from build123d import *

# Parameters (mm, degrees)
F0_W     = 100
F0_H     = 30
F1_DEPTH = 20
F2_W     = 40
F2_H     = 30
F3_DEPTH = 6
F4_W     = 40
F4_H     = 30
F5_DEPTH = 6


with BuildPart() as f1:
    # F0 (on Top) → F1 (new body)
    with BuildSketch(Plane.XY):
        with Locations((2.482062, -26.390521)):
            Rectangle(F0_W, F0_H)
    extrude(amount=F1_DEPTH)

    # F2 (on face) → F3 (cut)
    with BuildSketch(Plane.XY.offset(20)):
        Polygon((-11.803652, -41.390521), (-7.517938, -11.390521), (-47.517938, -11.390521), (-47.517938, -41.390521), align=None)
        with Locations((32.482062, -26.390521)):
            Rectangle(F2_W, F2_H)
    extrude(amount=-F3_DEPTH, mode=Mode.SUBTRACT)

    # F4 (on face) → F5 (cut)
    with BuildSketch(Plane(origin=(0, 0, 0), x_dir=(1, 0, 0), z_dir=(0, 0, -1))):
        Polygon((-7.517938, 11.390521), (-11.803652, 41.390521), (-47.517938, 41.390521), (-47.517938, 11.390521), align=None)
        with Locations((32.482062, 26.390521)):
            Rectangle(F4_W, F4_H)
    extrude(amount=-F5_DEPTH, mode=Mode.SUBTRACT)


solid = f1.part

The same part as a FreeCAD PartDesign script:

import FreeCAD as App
import Part
import Sketcher

V = App.Vector
Q = App.Units.Quantity


def add_polygon(sketch, points):
    """Adds a closed chain of lines whose ends are joined by coincident constraints."""
    first, n = sketch.GeometryCount, len(points)
    for a, b in zip(points, points[1:] + points[:1]):
        sketch.addGeometry(Part.LineSegment(App.Vector(*a, 0), App.Vector(*b, 0)), False)
    for i in range(n):
        sketch.addConstraint(Sketcher.Constraint("Coincident", first + i, 2, first + (i + 1) % n, 1))

doc = App.newDocument("Part")
body = doc.addObject("PartDesign::Body", "Body")

# Sketch on XY plane
sketch1 = body.newObject("Sketcher::SketchObject", "Sketch")
sketch1.AttachmentSupport = (doc.getObject("XY_Plane"), [""])
sketch1.MapMode = "FlatFace"
add_polygon(sketch1, [(-48, -11), (-48, -41), (52, -41), (52, -11)])  # lines 0-3
sketch1.addConstraint([
    Sketcher.Constraint("Vertical", 0),
    Sketcher.Constraint("Horizontal", 1),
    Sketcher.Constraint("Vertical", 2),
    Sketcher.Constraint("Horizontal", 3),
    Sketcher.Constraint("DistanceX", 1, 1, 1, 2, Q("100 mm")),
    Sketcher.Constraint("DistanceY", 0, 2, 0, 1, Q("30 mm")),
    Sketcher.Constraint("DistanceY", 0, 2, -1, 1, Q("41.390521 mm")),
    Sketcher.Constraint("DistanceX", 0, 2, -1, 1, Q("47.517938 mm")),
])
pad1 = body.newObject("PartDesign::Pad", "Pad")
pad1.Profile = sketch1
pad1.Length = 20

# Sketch on XY plane
sketch2 = body.newObject("Sketcher::SketchObject", "Sketch001")
sketch2.AttachmentSupport = (doc.getObject("XY_Plane"), [""])
sketch2.MapMode = "FlatFace"
sketch2.AttachmentOffset = App.Placement(V(0, 0, 20), App.Rotation())
add_polygon(sketch2, [(-12, -41), (-8, -11), (-48, -11), (-48, -41)])  # lines 0-3
add_polygon(sketch2, [(12, -11), (12, -41), (52, -41), (52, -11)])  # lines 4-7
sketch2.addConstraint([
    Sketcher.Constraint("Horizontal", 1),
    Sketcher.Constraint("Vertical", 2),
    Sketcher.Constraint("Horizontal", 3),
    Sketcher.Constraint("Vertical", 4),
    Sketcher.Constraint("Horizontal", 5),
    Sketcher.Constraint("Vertical", 6),
    Sketcher.Constraint("Horizontal", 7),
    Sketcher.Constraint("Horizontal", 3, 2, 4, 2),
    Sketcher.Constraint("Horizontal", 1, 2, 6, 2),
    Sketcher.Constraint("Equal", 1, 5),
    Sketcher.Constraint("DistanceX", 1, 2, 1, 1, Q("40 mm")),
    Sketcher.Constraint("DistanceY", 2, 2, 2, 1, Q("30 mm")),
    Sketcher.Constraint("DistanceX", 0, 2, 4, 2, Q("20 mm")),
    Sketcher.Constraint("DistanceX", 3, 1, 3, 2, Q("35.714286 mm")),
    Sketcher.Constraint("DistanceY", 0, 2, -1, 1, Q("11.390521 mm")),
    Sketcher.Constraint("DistanceX", 0, 2, -1, 1, Q("7.517938 mm")),
])
pocket1 = body.newObject("PartDesign::Pocket", "Pocket")
pocket1.Profile = sketch2
pocket1.Length = 6

# Sketch on XY plane
sketch3 = body.newObject("Sketcher::SketchObject", "Sketch002")
sketch3.AttachmentSupport = (doc.getObject("XY_Plane"), [""])
sketch3.MapMode = "FlatFace"
add_polygon(sketch3, [(-8, -11), (-12, -41), (-48, -41), (-48, -11)])  # lines 0-3
add_polygon(sketch3, [(12, -41), (12, -11), (52, -11), (52, -41)])  # lines 4-7
sketch3.addConstraint([
    Sketcher.Constraint("Horizontal", 1),
    Sketcher.Constraint("Vertical", 2),
    Sketcher.Constraint("Horizontal", 3),
    Sketcher.Constraint("Vertical", 4),
    Sketcher.Constraint("Horizontal", 5),
    Sketcher.Constraint("Vertical", 6),
    Sketcher.Constraint("Horizontal", 7),
    Sketcher.Constraint("Horizontal", 3, 2, 4, 2),
    Sketcher.Constraint("Horizontal", 1, 2, 6, 2),
    Sketcher.Constraint("Equal", 3, 5),
    Sketcher.Constraint("DistanceX", 3, 1, 3, 2, Q("40 mm")),
    Sketcher.Constraint("DistanceY", 2, 1, 2, 2, Q("30 mm")),
    Sketcher.Constraint("DistanceX", 3, 2, 4, 2, Q("20 mm")),
    Sketcher.Constraint("DistanceX", 1, 2, 1, 1, Q("35.714286 mm")),
    Sketcher.Constraint("DistanceY", 0, 2, -1, 1, Q("41.390521 mm")),
    Sketcher.Constraint("DistanceX", 0, 2, -1, 1, Q("11.803652 mm")),
])
pocket2 = body.newObject("PartDesign::Pocket", "Pocket001")
pocket2.Profile = sketch3
pocket2.Length = 6
pocket2.Reversed = True

doc.recompute()
